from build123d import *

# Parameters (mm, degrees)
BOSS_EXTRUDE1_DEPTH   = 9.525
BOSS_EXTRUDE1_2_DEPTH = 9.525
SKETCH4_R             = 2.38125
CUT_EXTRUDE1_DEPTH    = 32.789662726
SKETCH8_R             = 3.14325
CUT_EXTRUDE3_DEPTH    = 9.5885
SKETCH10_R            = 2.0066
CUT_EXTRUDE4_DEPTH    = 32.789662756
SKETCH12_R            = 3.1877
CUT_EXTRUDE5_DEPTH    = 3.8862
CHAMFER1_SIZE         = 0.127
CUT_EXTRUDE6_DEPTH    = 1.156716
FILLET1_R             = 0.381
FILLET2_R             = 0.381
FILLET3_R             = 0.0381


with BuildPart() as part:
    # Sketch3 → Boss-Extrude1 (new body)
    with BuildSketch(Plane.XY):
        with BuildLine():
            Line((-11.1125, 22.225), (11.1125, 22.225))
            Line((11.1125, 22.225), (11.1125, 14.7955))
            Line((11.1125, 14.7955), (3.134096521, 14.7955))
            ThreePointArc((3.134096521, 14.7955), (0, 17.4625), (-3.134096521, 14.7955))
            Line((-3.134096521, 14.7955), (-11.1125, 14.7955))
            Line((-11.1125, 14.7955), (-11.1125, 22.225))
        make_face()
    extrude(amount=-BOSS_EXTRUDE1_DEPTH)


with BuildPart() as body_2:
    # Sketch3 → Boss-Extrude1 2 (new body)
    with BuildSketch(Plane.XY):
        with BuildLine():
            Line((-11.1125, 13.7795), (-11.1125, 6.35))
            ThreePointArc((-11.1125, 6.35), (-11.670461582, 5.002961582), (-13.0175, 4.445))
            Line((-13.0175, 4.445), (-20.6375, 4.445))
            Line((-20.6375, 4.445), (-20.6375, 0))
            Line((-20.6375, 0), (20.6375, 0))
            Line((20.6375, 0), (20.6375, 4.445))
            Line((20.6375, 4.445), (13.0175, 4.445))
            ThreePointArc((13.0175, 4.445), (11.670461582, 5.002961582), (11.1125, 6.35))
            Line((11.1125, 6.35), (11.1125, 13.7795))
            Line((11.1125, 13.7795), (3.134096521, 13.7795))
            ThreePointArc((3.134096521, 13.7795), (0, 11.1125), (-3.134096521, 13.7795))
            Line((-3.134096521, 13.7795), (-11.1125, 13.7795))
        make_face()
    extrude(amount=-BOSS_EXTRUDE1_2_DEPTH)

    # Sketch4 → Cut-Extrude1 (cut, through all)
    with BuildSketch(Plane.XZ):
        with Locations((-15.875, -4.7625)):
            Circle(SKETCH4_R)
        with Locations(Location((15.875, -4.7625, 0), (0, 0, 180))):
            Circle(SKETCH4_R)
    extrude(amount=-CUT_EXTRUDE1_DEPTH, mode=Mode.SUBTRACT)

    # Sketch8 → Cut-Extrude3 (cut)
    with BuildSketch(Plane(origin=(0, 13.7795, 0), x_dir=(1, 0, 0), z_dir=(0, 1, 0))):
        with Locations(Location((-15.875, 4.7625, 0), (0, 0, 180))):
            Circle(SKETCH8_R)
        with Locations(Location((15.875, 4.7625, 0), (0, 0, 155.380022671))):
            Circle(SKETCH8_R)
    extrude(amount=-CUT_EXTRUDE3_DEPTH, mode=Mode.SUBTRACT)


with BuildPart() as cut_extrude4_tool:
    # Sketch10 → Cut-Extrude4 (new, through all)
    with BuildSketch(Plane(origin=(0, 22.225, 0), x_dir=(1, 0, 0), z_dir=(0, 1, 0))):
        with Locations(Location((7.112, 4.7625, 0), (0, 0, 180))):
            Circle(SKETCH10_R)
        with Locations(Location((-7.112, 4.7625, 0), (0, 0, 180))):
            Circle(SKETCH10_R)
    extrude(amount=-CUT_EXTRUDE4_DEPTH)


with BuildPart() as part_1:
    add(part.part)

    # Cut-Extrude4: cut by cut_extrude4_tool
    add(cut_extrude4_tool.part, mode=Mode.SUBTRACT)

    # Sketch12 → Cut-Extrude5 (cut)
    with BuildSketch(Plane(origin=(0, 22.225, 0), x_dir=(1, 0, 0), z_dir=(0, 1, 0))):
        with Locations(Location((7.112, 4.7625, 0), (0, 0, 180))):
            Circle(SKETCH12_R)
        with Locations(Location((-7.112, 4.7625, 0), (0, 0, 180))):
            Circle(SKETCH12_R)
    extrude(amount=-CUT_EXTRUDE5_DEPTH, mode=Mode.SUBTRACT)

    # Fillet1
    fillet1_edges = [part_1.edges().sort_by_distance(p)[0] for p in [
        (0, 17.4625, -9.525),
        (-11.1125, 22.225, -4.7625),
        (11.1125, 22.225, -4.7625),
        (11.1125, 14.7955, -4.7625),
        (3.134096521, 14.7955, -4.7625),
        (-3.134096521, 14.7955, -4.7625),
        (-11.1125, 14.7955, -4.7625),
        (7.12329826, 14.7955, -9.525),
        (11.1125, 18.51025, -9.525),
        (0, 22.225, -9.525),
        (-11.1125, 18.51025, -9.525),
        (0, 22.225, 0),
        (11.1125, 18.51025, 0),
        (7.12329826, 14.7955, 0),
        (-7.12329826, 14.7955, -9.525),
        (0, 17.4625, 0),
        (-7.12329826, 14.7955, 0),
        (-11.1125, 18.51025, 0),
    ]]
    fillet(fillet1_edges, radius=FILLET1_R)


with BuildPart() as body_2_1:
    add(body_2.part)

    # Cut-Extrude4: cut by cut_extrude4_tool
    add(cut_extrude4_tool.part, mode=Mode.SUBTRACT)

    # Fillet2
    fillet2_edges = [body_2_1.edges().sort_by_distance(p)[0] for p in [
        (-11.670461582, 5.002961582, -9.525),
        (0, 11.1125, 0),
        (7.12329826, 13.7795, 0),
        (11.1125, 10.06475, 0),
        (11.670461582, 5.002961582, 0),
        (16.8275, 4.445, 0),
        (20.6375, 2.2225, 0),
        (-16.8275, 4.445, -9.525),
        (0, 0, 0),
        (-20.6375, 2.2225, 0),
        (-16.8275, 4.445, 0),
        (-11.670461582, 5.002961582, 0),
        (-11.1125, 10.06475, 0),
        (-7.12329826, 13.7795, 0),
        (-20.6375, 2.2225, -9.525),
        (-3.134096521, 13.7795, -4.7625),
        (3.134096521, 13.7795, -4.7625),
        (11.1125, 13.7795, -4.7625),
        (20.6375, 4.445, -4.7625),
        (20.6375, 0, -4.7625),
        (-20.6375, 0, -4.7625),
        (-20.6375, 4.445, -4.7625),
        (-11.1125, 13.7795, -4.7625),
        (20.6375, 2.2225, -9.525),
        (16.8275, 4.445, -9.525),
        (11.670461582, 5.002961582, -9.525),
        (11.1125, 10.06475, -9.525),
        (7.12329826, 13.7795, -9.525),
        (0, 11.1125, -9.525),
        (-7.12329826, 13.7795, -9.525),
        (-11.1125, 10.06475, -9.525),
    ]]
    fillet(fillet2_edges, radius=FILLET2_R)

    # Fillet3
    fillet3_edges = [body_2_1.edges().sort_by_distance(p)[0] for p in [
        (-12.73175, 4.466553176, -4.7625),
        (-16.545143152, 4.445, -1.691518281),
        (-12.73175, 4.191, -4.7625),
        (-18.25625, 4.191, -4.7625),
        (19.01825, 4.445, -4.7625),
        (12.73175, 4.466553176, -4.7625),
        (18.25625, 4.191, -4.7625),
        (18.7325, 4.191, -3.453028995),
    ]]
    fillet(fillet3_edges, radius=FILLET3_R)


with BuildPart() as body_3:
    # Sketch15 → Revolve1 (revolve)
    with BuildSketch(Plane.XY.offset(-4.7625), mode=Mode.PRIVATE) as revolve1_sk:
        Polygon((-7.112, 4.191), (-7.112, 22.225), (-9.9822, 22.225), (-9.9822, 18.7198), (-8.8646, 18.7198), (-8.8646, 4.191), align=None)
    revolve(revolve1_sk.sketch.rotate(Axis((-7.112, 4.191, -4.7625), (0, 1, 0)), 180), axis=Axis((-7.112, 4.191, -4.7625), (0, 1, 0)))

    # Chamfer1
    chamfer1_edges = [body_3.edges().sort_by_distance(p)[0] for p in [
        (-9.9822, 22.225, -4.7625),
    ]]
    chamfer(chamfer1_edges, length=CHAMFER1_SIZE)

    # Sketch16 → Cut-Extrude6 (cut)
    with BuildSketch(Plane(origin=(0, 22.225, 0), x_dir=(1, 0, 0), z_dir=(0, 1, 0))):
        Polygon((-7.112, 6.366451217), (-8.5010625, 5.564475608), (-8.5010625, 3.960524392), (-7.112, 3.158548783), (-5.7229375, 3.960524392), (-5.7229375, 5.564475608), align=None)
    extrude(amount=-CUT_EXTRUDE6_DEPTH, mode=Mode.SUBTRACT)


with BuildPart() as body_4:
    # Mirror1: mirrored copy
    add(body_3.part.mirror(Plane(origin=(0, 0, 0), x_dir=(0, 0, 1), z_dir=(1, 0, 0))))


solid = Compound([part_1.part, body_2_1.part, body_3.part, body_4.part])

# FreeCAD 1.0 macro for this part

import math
import FreeCAD as App
import Part
import Sketcher
Q = App.Units.Quantity


def edges_at(feature, points):
    """Names of the edges that pass closest to the given points."""
    edges = feature.Shape.Edges
    near = lambda p: min(range(len(edges)), key=lambda i: edges[i].distToShape(Part.Vertex(*p))[0])
    return sorted({f"Edge{near(p) + 1}" for p in points})


def add_polygon(sketch, points):
    """Adds a closed chain of lines whose ends are joined by coincident constraints."""
    first, n = sketch.GeometryCount, len(points)
    for a, b in zip(points, points[1:] + points[:1]):
        sketch.addGeometry(Part.LineSegment(App.Vector(*a, 0), App.Vector(*b, 0)), False)
    for i in range(n):
        sketch.addConstraint(Sketcher.Constraint("Coincident", first + i, 2, first + (i + 1) % n, 1))

doc = App.newDocument("Part")
body = doc.addObject("PartDesign::Body", "Body")

sketch1 = doc.addObject("Sketcher::SketchObject", "Sketch")
body.addObject(sketch1)
sketch1.AttachmentSupport = (doc.XY_Plane, [""])
sketch1.MapMode = "FlatFace"
sketch1.addGeometry(Part.LineSegment(App.Vector(11.1, 22.2, 0), App.Vector(-11.1, 22.2, 0)), False)
sketch1.addGeometry(Part.LineSegment(App.Vector(-11.1, 22.2, 0), App.Vector(-11.1, 14.8, 0)), False)
sketch1.addGeometry(Part.LineSegment(App.Vector(-11.1, 14.8, 0), App.Vector(-3.1, 14.8, 0)), False)
sketch1.addGeometry(Part.ArcOfCircle(Part.Circle(App.Vector(0, 14.3, 0), App.Vector(0, 0, 1), 3.2), math.radians(9), math.radians(171)), False)
sketch1.addGeometry(Part.LineSegment(App.Vector(3.1, 14.8, 0), App.Vector(11.1, 14.8, 0)), False)
sketch1.addGeometry(Part.LineSegment(App.Vector(11.1, 14.8, 0), App.Vector(11.1, 22.2, 0)), False)
sketch1.addConstraint(Sketcher.Constraint("Coincident", 0, 2, 1, 1))
sketch1.addConstraint(Sketcher.Constraint("Coincident", 1, 2, 2, 1))
sketch1.addConstraint(Sketcher.Constraint("Coincident", 2, 2, 3, 2))
sketch1.addConstraint(Sketcher.Constraint("Coincident", 3, 1, 4, 1))
sketch1.addConstraint(Sketcher.Constraint("Coincident", 4, 2, 5, 1))
sketch1.addConstraint(Sketcher.Constraint("Coincident", 5, 2, 0, 1))
sketch1.addConstraint(Sketcher.Constraint("Horizontal", 0))
sketch1.addConstraint(Sketcher.Constraint("Vertical", 1))
sketch1.addConstraint(Sketcher.Constraint("Horizontal", 2))
sketch1.addConstraint(Sketcher.Constraint("Horizontal", 4))
sketch1.addConstraint(Sketcher.Constraint("Vertical", 5))
sketch1.addConstraint(Sketcher.Constraint("Symmetric", 2, 2, 3, 1, -2))
sketch1.addConstraint(Sketcher.Constraint("Equal", 2, 4))
sketch1.addConstraint(Sketcher.Constraint("Radius", 3, Q("0.125 in")))
sketch1.addConstraint(Sketcher.Constraint("DistanceX", 0, 2, 0, 1, Q("0.875 in")))
sketch1.addConstraint(Sketcher.Constraint("DistanceY", 3, 3, 1, 2, Q("0.02 in")))
sketch1.addConstraint(Sketcher.Constraint("DistanceY", 1, 2, 1, 1, Q("0.2925 in")))
sketch1.addConstraint(Sketcher.Constraint("DistanceY", -1, 1, 3, 3, Q("0.5625 in")))
pad1 = doc.addObject("PartDesign::Pad", "Pad")
body.addObject(pad1)
pad1.Profile = sketch1
pad1.Length = Q("0.375 in")
pad1.Reversed = True
body2 = doc.addObject("PartDesign::Body", "Body001")

sketch2 = doc.addObject("Sketcher::SketchObject", "Sketch001")
body2.addObject(sketch2)
sketch2.AttachmentSupport = (doc.getObject("XY_Plane001"), [""])
sketch2.MapMode = "FlatFace"
sketch2.addGeometry(Part.LineSegment(App.Vector(-11.1, 13.8, 0), App.Vector(-11.1, 6.3, 0)), False)
sketch2.addGeometry(Part.ArcOfCircle(Part.Circle(App.Vector(-13, 6.4, 0), App.Vector(0, 0, 1), 1.9), math.radians(-90), math.radians(0)), False)
sketch2.addGeometry(Part.LineSegment(App.Vector(-13, 4.4, 0), App.Vector(-20.6, 4.4, 0)), False)
sketch2.addGeometry(Part.LineSegment(App.Vector(-20.6, 4.4, 0), App.Vector(-20.6, 0, 0)), False)
sketch2.addGeometry(Part.LineSegment(App.Vector(-20.6, 0, 0), App.Vector(20.6, 0, 0)), False)
sketch2.addGeometry(Part.LineSegment(App.Vector(20.6, 0, 0), App.Vector(20.6, 4.4, 0)), False)
sketch2.addGeometry(Part.LineSegment(App.Vector(20.6, 4.4, 0), App.Vector(13, 4.4, 0)), False)
sketch2.addGeometry(Part.ArcOfCircle(Part.Circle(App.Vector(13, 6.4, 0), App.Vector(0, 0, 1), 1.9), math.radians(-180), math.radians(-90)), False)
sketch2.addGeometry(Part.LineSegment(App.Vector(11.1, 6.3, 0), App.Vector(11.1, 13.8, 0)), False)
sketch2.addGeometry(Part.LineSegment(App.Vector(11.1, 13.8, 0), App.Vector(3.1, 13.8, 0)), False)
sketch2.addGeometry(Part.ArcOfCircle(Part.Circle(App.Vector(0, 14.3, 0), App.Vector(0, 0, 1), 3.2), math.radians(-171), math.radians(-9)), False)
sketch2.addGeometry(Part.LineSegment(App.Vector(-3.1, 13.8, 0), App.Vector(-11.1, 13.8, 0)), False)
sketch2.addConstraint(Sketcher.Constraint("Tangent", 0, 2, 1, 2))
sketch2.addConstraint(Sketcher.Constraint("Tangent", 1, 1, 2, 1))
sketch2.addConstraint(Sketcher.Constraint("Coincident", 2, 2, 3, 1))
sketch2.addConstraint(Sketcher.Constraint("Coincident", 3, 2, 4, 1))
sketch2.addConstraint(Sketcher.Constraint("Coincident", 4, 2, 5, 1))
sketch2.addConstraint(Sketcher.Constraint("Coincident", 5, 2, 6, 1))
sketch2.addConstraint(Sketcher.Constraint("Tangent", 6, 2, 7, 2))
sketch2.addConstraint(Sketcher.Constraint("Tangent", 7, 1, 8, 1))
sketch2.addConstraint(Sketcher.Constraint("Coincident", 8, 2, 9, 1))
sketch2.addConstraint(Sketcher.Constraint("Coincident", 9, 2, 10, 2))
sketch2.addConstraint(Sketcher.Constraint("Coincident", 10, 1, 11, 1))
sketch2.addConstraint(Sketcher.Constraint("Coincident", 11, 2, 0, 1))
sketch2.addConstraint(Sketcher.Constraint("Vertical", 0))
sketch2.addConstraint(Sketcher.Constraint("Horizontal", 2))
sketch2.addConstraint(Sketcher.Constraint("Vertical", 3))
sketch2.addConstraint(Sketcher.Constraint("Horizontal", 4))
sketch2.addConstraint(Sketcher.Constraint("Vertical", 5))
sketch2.addConstraint(Sketcher.Constraint("Horizontal", 6))
sketch2.addConstraint(Sketcher.Constraint("Vertical", 8))
sketch2.addConstraint(Sketcher.Constraint("Horizontal", 9))
sketch2.addConstraint(Sketcher.Constraint("Horizontal", 11))
sketch2.addConstraint(Sketcher.Constraint("Equal", 1, 7))
sketch2.addConstraint(Sketcher.Constraint("Symmetric", 3, 2, 4, 2, -1, 1))
sketch2.addConstraint(Sketcher.Constraint("Symmetric", 1, 3, 7, 3, -2))
sketch2.addConstraint(Sketcher.Constraint("Symmetric", 9, 2, 10, 1, -2))
sketch2.addConstraint(Sketcher.Constraint("DistanceX", 2, 2, 2, 1, Q("0.3 in")))
sketch2.addConstraint(Sketcher.Constraint("Radius", 1, Q("0.075 in")))
sketch2.addConstraint(Sketcher.Constraint("Radius", 10, Q("0.125 in")))
sketch2.addConstraint(Sketcher.Constraint("DistanceX", 4, 1, 4, 2, Q("1.625 in")))
sketch2.addConstraint(Sketcher.Constraint("DistanceY", 3, 2, 3, 1, Q("0.175 in")))
sketch2.addConstraint(Sketcher.Constraint("DistanceY", 8, 2, 10, 3, Q("0.02 in")))
sketch2.addConstraint(Sketcher.Constraint("DistanceY", 0, 2, 0, 1, Q("0.2925 in")))
pad2 = doc.addObject("PartDesign::Pad", "Pad001")
body2.addObject(pad2)
pad2.Profile = sketch2
pad2.Length = Q("0.375 in")
pad2.Reversed = True

sketch3 = doc.addObject("Sketcher::SketchObject", "Sketch002")
body2.addObject(sketch3)
sketch3.AttachmentSupport = (doc.getObject("XZ_Plane001"), [""])
sketch3.MapMode = "FlatFace"
sketch3.addGeometry(Part.Circle(App.Vector(-15.9, -4.8, 0), App.Vector(0, 0, 1), 2.4), False)
sketch3.addGeometry(Part.Circle(App.Vector(15.9, -4.8, 0), App.Vector(0, 0, 1), 2.4), False)
sketch3.addConstraint(Sketcher.Constraint("Equal", 0, 1))
sketch3.addConstraint(Sketcher.Constraint("Symmetric", 0, 3, 1, 3, -2))
sketch3.addConstraint(Sketcher.Constraint("Diameter", 0, Q("0.1875 in")))
sketch3.addConstraint(Sketcher.Constraint("DistanceX", 0, 3, 1, 3, Q("1.25 in")))
sketch3.addConstraint(Sketcher.Constraint("DistanceY", 0, 3, -1, 1, Q("0.1875 in")))
pocket1 = doc.addObject("PartDesign::Pocket", "Pocket")
body2.addObject(pocket1)
pocket1.Profile = sketch3
pocket1.Type = "ThroughAll"

sketch4 = doc.addObject("Sketcher::SketchObject", "Sketch003")
body2.addObject(sketch4)
sketch4.AttachmentSupport = (doc.getObject("XZ_Plane001"), [""])
sketch4.MapMode = "FlatFace"
sketch4.AttachmentOffset = App.Placement(App.Vector(0, 0, -0.5425 * 25.4), App.Rotation())
sketch4.addGeometry(Part.Circle(App.Vector(-15.9, -4.8, 0), App.Vector(0, 0, 1), 3.1), False)
sketch4.addGeometry(Part.Circle(App.Vector(15.9, -4.8, 0), App.Vector(0, 0, 1), 3.1), False)
sketch4.addConstraint(Sketcher.Constraint("Equal", 0, 1))
sketch4.addConstraint(Sketcher.Constraint("Symmetric", 0, 3, 1, 3, -2))
sketch4.addConstraint(Sketcher.Constraint("Diameter", 0, Q("0.2475 in")))
sketch4.addConstraint(Sketcher.Constraint("DistanceX", 0, 3, 1, 3, Q("1.25 in")))
sketch4.addConstraint(Sketcher.Constraint("DistanceY", 0, 3, -1, 1, Q("0.1875 in")))
pocket2 = doc.addObject("PartDesign::Pocket", "Pocket001")
body2.addObject(pocket2)
pocket2.Profile = sketch4
pocket2.Length = Q("0.3775 in")
pocket2.Reversed = True
body3 = doc.addObject("PartDesign::Body", "Body002")
body3.AllowCompound = True

sketch5 = doc.addObject("Sketcher::SketchObject", "Sketch004")
body3.addObject(sketch5)
sketch5.AttachmentSupport = (doc.getObject("XZ_Plane002"), [""])
sketch5.MapMode = "FlatFace"
sketch5.AttachmentOffset = App.Placement(App.Vector(0, 0, -0.875 * 25.4), App.Rotation())
sketch5.addGeometry(Part.Circle(App.Vector(7.1, -4.8, 0), App.Vector(0, 0, 1), 2), False)
sketch5.addGeometry(Part.Circle(App.Vector(-7.1, -4.8, 0), App.Vector(0, 0, 1), 2), False)
sketch5.addConstraint(Sketcher.Constraint("Equal", 0, 1))
sketch5.addConstraint(Sketcher.Constraint("Symmetric", 0, 3, 1, 3, -2))
sketch5.addConstraint(Sketcher.Constraint("Diameter", 0, Q("0.158 in")))
sketch5.addConstraint(Sketcher.Constraint("DistanceX", -1, 1, 0, 3, Q("0.28 in")))
sketch5.addConstraint(Sketcher.Constraint("DistanceY", 0, 3, -1, 1, Q("0.1875 in")))
pad3 = doc.addObject("PartDesign::Pad", "Pad002")
body3.addObject(pad3)
pad3.Profile = sketch5
pad3.Length = 32.789663
doc.recompute()

body4 = doc.addObject("PartDesign::Body", "Body003")
body4.BaseFeature = body3
boolean = doc.addObject("PartDesign::Boolean", "Boolean")
body.addObject(boolean)
boolean.Type = "Cut"
boolean.addObjects([body4])
doc.recompute()

sketch6 = doc.addObject("Sketcher::SketchObject", "Sketch005")
body.addObject(sketch6)
sketch6.AttachmentSupport = (doc.XZ_Plane, [""])
sketch6.MapMode = "FlatFace"
sketch6.AttachmentOffset = App.Placement(App.Vector(0, 0, -0.875 * 25.4), App.Rotation())
sketch6.addGeometry(Part.Circle(App.Vector(7.1, -4.8, 0), App.Vector(0, 0, 1), 3.2), False)
sketch6.addGeometry(Part.Circle(App.Vector(-7.1, -4.8, 0), App.Vector(0, 0, 1), 3.2), False)
sketch6.addConstraint(Sketcher.Constraint("Equal", 0, 1))
sketch6.addConstraint(Sketcher.Constraint("Symmetric", 0, 3, 1, 3, -2))
sketch6.addConstraint(Sketcher.Constraint("Diameter", 0, Q("0.251 in")))
sketch6.addConstraint(Sketcher.Constraint("DistanceX", -1, 1, 0, 3, Q("0.28 in")))
sketch6.addConstraint(Sketcher.Constraint("DistanceY", 0, 3, -1, 1, Q("0.1875 in")))
pocket3 = doc.addObject("PartDesign::Pocket", "Pocket002")
body.addObject(pocket3)
pocket3.Profile = sketch6
pocket3.Length = Q("0.153 in")
pocket3.Reversed = True
doc.recompute()

fillet = doc.addObject("PartDesign::Fillet", "Fillet")
body.addObject(fillet)
fillet.Base = (pocket3, edges_at(pocket3, [
    (0, 17.462, -9.525),
    (-11.113, 22.225, -4.763),
    (11.113, 22.225, -4.763),
    (11.113, 14.796, -4.763),
    (3.134, 14.796, -4.763),
    (-3.134, 14.796, -4.763),
    (-11.113, 14.796, -4.763),
    (7.123, 14.796, -9.525),
    (11.113, 18.51, -9.525),
    (0, 22.225, -9.525),
    (-11.113, 18.51, -9.525),
    (0, 22.225, 0),
    (11.113, 18.51, 0),
    (7.123, 14.796, 0),
    (-7.123, 14.796, -9.525),
    (0, 17.462, 0),
    (-7.123, 14.796, 0),
    (-11.113, 18.51, 0),
]))
fillet.Radius = Q("0.015 in")
doc.recompute()

boolean2 = doc.addObject("PartDesign::Boolean", "Boolean001")
body2.addObject(boolean2)
boolean2.Type = "Cut"
boolean2.addObjects([body3])
doc.recompute()

fillet2 = doc.addObject("PartDesign::Fillet", "Fillet001")
body2.addObject(fillet2)
fillet2.Base = (boolean2, edges_at(boolean2, [
    (-11.67, 5.003, -9.525),
    (0, 11.113, 0),
    (7.123, 13.78, 0),
    (11.113, 10.065, 0),
    (11.67, 5.003, 0),
    (16.828, 4.445, 0),
    (20.637, 2.223, 0),
    (-16.828, 4.445, -9.525),
    (0, 0, 0),
    (-20.637, 2.223, 0),
    (-16.828, 4.445, 0),
    (-11.67, 5.003, 0),
    (-11.113, 10.065, 0),
    (-7.123, 13.78, 0),
    (-20.637, 2.223, -9.525),
    (-3.134, 13.78, -4.763),
    (3.134, 13.78, -4.763),
    (11.113, 13.78, -4.763),
    (20.637, 4.445, -4.763),
    (20.637, 0, -4.763),
    (-20.637, 0, -4.763),
    (-20.637, 4.445, -4.763),
    (-11.113, 13.78, -4.763),
    (20.637, 2.223, -9.525),
    (16.828, 4.445, -9.525),
    (11.67, 5.003, -9.525),
    (11.113, 10.065, -9.525),
    (7.123, 13.78, -9.525),
    (0, 11.113, -9.525),
    (-7.123, 13.78, -9.525),
    (-11.113, 10.065, -9.525),
]))
fillet2.Radius = Q("0.015 in")
doc.recompute()

fillet3 = doc.addObject("PartDesign::Fillet", "Fillet002")
body2.addObject(fillet3)
fillet3.Base = (fillet2, edges_at(fillet2, [
    (-12.732, 4.467, -4.763),
    (-16.545, 4.445, -1.692),
    (-12.732, 4.191, -4.763),
    (-18.256, 4.191, -4.763),
    (19.018, 4.445, -4.763),
    (12.732, 4.467, -4.763),
    (18.256, 4.191, -4.763),
    (18.733, 4.191, -3.453),
]))
fillet3.Radius = Q("0.0015 in")
body5 = doc.addObject("PartDesign::Body", "Body004")

sketch7 = doc.addObject("Sketcher::SketchObject", "Sketch006")
body5.addObject(sketch7)
sketch7.AttachmentSupport = (doc.getObject("XY_Plane004"), [""])
sketch7.MapMode = "FlatFace"
sketch7.AttachmentOffset = App.Placement(App.Vector(0, 0, -0.1875 * 25.4), App.Rotation())
add_polygon(sketch7, [(-7.1, 4.2), (-7.1, 22.2), (-10, 22.2), (-10, 18.7), (-8.9, 18.7), (-8.9, 4.2)])
sketch7.addGeometry(Part.LineSegment(App.Vector(-7.1, 4.2, 0), App.Vector(-7.1, 22.2, 0)), True)
sketch7.addConstraint(Sketcher.Constraint("Vertical", 0))
sketch7.addConstraint(Sketcher.Constraint("Horizontal", 1))
sketch7.addConstraint(Sketcher.Constraint("Vertical", 2))
sketch7.addConstraint(Sketcher.Constraint("Horizontal", 3))
sketch7.addConstraint(Sketcher.Constraint("Vertical", 4))
sketch7.addConstraint(Sketcher.Constraint("Horizontal", 5))
sketch7.addConstraint(Sketcher.Constraint("Vertical", 6))
sketch7.addConstraint(Sketcher.Constraint("Coincident", 6, 1, 5, 2))
sketch7.addConstraint(Sketcher.Constraint("Horizontal", 1, 2, 6, 2))
sketch7.addConstraint(Sketcher.Constraint("DistanceY", 0, 1, 0, 2, Q("0.71 in")))
sketch7.addConstraint(Sketcher.Constraint("DistanceX", 1, 2, 1, 1, Q("0.113 in")))
sketch7.addConstraint(Sketcher.Constraint("DistanceX", 3, 1, 3, 2, Q("0.044 in")))
sketch7.addConstraint(Sketcher.Constraint("DistanceY", 2, 2, 2, 1, Q("0.138 in")))
sketch7.addConstraint(Sketcher.Constraint("DistanceX", 0, 2, -1, 1, Q("0.28 in")))
sketch7.addConstraint(Sketcher.Constraint("DistanceY", -1, 1, 0, 2, Q("0.875 in")))
revolution = doc.addObject("PartDesign::Revolution", "Revolution")
body5.addObject(revolution)
revolution.Profile = sketch7
revolution.ReferenceAxis = (sketch7, ["Axis0"])
revolution.Angle = 360
doc.recompute()

chamfer = doc.addObject("PartDesign::Chamfer", "Chamfer")
body5.addObject(chamfer)
chamfer.Base = (revolution, edges_at(revolution, [(-9.982, 22.225, -4.763)]))
chamfer.Size = Q("0.005 in")

sketch8 = doc.addObject("Sketcher::SketchObject", "Sketch007")
body5.addObject(sketch8)
sketch8.AttachmentSupport = (doc.getObject("XZ_Plane004"), [""])
sketch8.MapMode = "FlatFace"
sketch8.AttachmentOffset = App.Placement(App.Vector(0, 0, -0.875 * 25.4), App.Rotation())
add_polygon(sketch8, [(-7.1, -6.4), (-8.5, -5.6), (-8.5, -4), (-7.1, -3.2), (-5.7, -4), (-5.7, -5.6)])
sketch8.addConstraint(Sketcher.Constraint("Vertical", 1))
sketch8.addConstraint(Sketcher.Constraint("Vertical", 4))
sketch8.addConstraint(Sketcher.Constraint("Parallel", 0, 3))
sketch8.addConstraint(Sketcher.Constraint("Parallel", 2, 5))
sketch8.addConstraint(Sketcher.Constraint("Horizontal", 1, 2, 3, 2))
sketch8.addConstraint(Sketcher.Constraint("Horizontal", 0, 2, 4, 2))
sketch8.addConstraint(Sketcher.Constraint("Vertical", 2, 2, 5, 2))
sketch8.addConstraint(Sketcher.Constraint("Angle", 0, Q("150 deg")))
sketch8.addConstraint(Sketcher.Constraint("DistanceX", 2, 2, -1, 1, Q("0.28 in")))
sketch8.addConstraint(Sketcher.Constraint("DistanceX", 1, 2, 3, 2, Q("0.109375 in")))
sketch8.addConstraint(Sketcher.Constraint("DistanceY", 1, 1, 1, 2, Q("1.603951 mm")))
sketch8.addConstraint(Sketcher.Constraint("DistanceY", 2, 2, -1, 1, Q("3.158549 mm")))
pocket4 = doc.addObject("PartDesign::Pocket", "Pocket003")
body5.addObject(pocket4)
pocket4.Profile = sketch8
pocket4.Length = 1.156716
pocket4.Reversed = True
body6 = doc.addObject("PartDesign::Body", "Body005")
doc.recompute()

mirroring = doc.addObject("Part::Mirroring", "Mirroring")
mirroring.Source = body5
mirroring.Base = App.Vector(0, 0, 0)
mirroring.Normal = App.Vector(1, 0, 0)
body6.BaseFeature = mirroring
doc.recompute()
mirroring.Visibility = False

doc.recompute()
